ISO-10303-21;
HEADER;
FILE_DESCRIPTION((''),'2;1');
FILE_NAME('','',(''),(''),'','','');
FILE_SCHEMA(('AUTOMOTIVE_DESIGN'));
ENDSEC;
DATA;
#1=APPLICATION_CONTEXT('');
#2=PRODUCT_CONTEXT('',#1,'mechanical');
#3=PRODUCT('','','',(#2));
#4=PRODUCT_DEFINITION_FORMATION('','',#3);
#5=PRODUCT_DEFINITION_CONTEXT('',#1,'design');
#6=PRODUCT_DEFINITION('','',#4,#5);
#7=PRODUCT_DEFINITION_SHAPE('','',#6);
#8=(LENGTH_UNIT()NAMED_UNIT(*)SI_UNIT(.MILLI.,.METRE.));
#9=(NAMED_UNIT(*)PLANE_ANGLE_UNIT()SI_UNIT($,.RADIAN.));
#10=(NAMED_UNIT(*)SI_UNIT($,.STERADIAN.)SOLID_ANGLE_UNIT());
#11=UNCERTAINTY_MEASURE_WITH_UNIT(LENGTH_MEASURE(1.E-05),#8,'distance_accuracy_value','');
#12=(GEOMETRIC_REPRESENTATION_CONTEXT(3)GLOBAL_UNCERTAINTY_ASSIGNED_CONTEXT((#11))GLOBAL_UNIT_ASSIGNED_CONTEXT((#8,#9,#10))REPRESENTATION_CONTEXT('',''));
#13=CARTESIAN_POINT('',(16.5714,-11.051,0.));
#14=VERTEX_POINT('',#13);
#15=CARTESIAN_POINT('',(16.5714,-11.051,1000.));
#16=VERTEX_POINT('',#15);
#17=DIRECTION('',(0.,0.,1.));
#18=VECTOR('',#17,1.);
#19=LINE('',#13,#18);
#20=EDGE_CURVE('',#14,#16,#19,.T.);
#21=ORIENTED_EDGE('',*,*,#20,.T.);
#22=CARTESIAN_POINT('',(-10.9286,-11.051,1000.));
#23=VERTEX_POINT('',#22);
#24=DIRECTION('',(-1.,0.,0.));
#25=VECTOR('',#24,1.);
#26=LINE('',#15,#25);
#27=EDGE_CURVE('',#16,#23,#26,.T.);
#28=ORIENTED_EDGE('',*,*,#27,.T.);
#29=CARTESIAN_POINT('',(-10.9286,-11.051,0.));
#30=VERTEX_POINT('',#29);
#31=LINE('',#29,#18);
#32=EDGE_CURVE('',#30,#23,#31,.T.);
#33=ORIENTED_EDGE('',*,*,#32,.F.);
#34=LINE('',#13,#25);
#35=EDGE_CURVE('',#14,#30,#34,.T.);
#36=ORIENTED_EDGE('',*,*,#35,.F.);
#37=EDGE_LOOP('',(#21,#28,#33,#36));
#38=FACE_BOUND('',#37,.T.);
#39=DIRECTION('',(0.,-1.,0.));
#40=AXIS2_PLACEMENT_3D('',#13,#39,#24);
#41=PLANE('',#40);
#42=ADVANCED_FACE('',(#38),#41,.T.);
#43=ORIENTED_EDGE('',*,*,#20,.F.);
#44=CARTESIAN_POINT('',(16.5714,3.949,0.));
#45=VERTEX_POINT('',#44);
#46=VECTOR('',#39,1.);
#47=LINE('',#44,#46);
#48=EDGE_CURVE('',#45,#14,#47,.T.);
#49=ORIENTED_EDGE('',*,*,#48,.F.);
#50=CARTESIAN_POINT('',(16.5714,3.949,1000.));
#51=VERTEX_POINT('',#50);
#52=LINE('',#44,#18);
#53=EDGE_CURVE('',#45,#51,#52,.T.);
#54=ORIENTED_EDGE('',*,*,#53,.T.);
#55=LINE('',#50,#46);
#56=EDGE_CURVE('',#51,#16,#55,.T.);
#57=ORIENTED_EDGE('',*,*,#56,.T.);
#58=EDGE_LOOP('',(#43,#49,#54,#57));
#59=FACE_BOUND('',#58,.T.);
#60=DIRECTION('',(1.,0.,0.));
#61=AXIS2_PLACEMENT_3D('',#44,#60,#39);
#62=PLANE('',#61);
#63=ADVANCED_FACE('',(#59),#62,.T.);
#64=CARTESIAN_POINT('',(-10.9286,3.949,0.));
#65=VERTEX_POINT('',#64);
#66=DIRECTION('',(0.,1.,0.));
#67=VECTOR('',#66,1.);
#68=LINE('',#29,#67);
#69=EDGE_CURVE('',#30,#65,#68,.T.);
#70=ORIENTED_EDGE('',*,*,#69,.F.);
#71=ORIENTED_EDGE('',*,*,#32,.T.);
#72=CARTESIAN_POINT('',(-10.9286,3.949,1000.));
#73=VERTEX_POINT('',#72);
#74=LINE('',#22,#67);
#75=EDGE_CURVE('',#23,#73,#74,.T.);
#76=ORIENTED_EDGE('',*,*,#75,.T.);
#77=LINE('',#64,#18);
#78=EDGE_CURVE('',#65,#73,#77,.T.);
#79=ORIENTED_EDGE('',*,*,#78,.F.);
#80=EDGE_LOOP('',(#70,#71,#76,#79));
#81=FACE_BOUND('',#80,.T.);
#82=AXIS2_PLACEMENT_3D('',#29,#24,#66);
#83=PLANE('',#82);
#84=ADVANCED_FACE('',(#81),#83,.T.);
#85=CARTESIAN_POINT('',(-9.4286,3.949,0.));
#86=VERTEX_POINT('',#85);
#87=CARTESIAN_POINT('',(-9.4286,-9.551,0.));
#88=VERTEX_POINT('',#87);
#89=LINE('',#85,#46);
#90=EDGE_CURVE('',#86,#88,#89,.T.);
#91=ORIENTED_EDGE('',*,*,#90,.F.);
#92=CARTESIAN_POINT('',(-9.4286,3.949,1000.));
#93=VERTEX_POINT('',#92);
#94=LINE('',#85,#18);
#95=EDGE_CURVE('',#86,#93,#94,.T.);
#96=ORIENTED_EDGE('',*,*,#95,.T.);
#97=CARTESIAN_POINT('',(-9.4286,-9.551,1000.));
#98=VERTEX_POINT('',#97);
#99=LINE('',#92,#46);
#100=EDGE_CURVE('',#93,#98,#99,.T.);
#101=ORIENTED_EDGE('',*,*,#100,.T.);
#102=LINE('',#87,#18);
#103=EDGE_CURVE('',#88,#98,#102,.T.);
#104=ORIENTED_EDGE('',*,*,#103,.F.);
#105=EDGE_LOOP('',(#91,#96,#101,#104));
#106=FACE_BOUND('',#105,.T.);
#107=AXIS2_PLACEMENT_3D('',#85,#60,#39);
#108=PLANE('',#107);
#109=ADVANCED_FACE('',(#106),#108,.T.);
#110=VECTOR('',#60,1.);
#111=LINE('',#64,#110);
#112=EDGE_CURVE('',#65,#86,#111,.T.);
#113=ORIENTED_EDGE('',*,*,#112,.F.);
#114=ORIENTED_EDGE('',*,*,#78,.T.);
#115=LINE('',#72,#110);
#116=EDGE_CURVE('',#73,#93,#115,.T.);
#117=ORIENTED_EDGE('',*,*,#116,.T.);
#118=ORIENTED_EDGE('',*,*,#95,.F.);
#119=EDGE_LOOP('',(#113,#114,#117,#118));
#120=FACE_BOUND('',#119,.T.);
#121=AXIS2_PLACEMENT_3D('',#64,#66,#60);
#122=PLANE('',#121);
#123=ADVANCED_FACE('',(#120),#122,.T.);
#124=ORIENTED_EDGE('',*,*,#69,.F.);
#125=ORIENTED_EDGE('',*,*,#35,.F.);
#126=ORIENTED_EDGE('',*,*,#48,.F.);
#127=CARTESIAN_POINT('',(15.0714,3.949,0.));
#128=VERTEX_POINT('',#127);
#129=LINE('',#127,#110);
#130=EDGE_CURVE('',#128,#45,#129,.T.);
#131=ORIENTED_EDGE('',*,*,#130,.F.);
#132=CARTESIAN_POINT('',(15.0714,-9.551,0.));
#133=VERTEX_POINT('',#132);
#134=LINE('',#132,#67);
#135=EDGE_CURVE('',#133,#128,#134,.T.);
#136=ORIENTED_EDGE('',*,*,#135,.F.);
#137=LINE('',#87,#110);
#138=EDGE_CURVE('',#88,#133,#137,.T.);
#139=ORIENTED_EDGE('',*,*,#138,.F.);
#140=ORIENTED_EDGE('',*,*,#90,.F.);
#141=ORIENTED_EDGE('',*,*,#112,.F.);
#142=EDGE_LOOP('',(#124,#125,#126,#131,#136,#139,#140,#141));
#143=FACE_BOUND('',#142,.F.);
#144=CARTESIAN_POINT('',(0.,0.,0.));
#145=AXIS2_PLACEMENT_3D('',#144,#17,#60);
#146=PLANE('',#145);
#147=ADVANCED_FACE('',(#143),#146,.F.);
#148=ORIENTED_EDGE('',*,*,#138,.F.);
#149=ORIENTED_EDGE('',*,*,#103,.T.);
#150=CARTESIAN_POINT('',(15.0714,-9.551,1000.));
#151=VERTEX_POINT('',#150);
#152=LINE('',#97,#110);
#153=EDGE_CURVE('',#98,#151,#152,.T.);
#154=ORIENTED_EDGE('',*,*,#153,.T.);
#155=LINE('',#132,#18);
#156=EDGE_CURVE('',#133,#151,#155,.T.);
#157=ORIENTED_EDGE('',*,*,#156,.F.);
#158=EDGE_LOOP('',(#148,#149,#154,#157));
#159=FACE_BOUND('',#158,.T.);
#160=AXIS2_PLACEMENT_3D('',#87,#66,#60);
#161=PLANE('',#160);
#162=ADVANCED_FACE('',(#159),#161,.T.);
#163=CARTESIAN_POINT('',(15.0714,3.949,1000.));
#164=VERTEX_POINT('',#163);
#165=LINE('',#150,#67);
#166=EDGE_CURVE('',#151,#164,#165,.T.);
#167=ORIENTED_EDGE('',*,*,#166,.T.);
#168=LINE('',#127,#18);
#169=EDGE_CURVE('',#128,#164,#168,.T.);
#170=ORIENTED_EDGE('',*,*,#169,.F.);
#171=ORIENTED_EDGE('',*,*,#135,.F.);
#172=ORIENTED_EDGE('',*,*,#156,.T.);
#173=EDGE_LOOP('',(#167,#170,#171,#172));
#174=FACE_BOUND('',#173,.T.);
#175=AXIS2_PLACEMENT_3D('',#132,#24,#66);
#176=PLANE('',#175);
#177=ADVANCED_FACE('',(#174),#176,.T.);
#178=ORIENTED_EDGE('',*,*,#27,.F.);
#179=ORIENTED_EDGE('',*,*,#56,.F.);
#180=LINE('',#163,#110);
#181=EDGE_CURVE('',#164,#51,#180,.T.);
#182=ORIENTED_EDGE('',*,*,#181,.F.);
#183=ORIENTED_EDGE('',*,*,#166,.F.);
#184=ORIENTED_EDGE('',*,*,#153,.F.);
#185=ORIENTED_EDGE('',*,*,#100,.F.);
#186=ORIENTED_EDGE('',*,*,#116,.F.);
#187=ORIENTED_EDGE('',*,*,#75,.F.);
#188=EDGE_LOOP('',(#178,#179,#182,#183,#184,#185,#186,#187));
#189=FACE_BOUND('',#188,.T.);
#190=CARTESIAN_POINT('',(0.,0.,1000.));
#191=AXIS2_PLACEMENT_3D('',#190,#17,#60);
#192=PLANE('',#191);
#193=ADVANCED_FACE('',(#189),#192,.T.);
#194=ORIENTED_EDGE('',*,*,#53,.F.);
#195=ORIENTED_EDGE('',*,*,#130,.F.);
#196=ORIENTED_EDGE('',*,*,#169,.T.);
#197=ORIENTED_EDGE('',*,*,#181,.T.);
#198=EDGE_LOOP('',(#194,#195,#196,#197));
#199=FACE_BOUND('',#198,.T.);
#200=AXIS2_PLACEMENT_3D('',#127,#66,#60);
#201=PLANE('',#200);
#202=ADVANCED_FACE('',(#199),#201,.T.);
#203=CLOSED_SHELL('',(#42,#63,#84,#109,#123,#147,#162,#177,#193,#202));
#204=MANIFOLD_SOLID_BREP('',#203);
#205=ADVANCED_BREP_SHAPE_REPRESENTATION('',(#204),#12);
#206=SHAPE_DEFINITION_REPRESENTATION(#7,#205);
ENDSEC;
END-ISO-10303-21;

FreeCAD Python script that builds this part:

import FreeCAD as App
import Part
import Sketcher
from FreeCAD import Vector
Q = App.Units.Quantity

doc = App.newDocument("Part")
body = doc.addObject("PartDesign::Body", "Body")

sketch1 = body.newObject("Sketcher::SketchObject", "Sketch")
sketch1.AttachmentSupport = (doc.getObject("XY_Plane"), [""])
sketch1.MapMode = "FlatFace"
sketch1.addGeometry([
    Part.LineSegment(Vector(-10.9286, 3.949, 0), Vector(-10.9286, -11.051, 0)),
    Part.LineSegment(Vector(-10.9286, -11.051, 0), Vector(16.5714, -11.051, 0)),
    Part.LineSegment(Vector(16.5714, -11.051, 0), Vector(16.5714, 3.949, 0)),
    Part.LineSegment(Vector(16.5714, 3.949, 0), Vector(15.0714, 3.949, 0)),
    Part.LineSegment(Vector(15.0714, 3.949, 0), Vector(15.0714, -9.551, 0)),
    Part.LineSegment(Vector(15.0714, -9.551, 0), Vector(-9.4286, -9.551, 0)),
    Part.LineSegment(Vector(-9.4286, -9.551, 0), Vector(-9.4286, 3.949, 0)),
    Part.LineSegment(Vector(-9.4286, 3.949, 0), Vector(-10.9286, 3.949, 0)),
], False)
sketch1.addConstraint([
    Sketcher.Constraint("Coincident", 0, 2, 1, 1),
    Sketcher.Constraint("Coincident", 1, 2, 2, 1),
    Sketcher.Constraint("Coincident", 2, 2, 3, 1),
    Sketcher.Constraint("Coincident", 3, 2, 4, 1),
    Sketcher.Constraint("Coincident", 4, 2, 5, 1),
    Sketcher.Constraint("Coincident", 5, 2, 6, 1),
    Sketcher.Constraint("Coincident", 6, 2, 7, 1),
    Sketcher.Constraint("Coincident", 7, 2, 0, 1),
    Sketcher.Constraint("Vertical", 0),
    Sketcher.Constraint("Horizontal", 1),
    Sketcher.Constraint("Vertical", 2),
    Sketcher.Constraint("Horizontal", 3),
    Sketcher.Constraint("Vertical", 4),
    Sketcher.Constraint("Horizontal", 5),
    Sketcher.Constraint("Vertical", 6),
    Sketcher.Constraint("Horizontal", 7),
    Sketcher.Constraint("Horizontal", 3, 2, 6, 2),
    Sketcher.Constraint("Equal", 3, 7),
    Sketcher.Constraint("DistanceY", 0, 2, 0, 1, Q("15 mm")),
    Sketcher.Constraint("DistanceX", 1, 1, 1, 2, Q("27.5 mm")),
    Sketcher.Constraint("DistanceX", 3, 2, 3, 1, Q("1.5 mm")),
    Sketcher.Constraint("DistanceY", 1, 2, 4, 2, Q("1.5 mm")),
    Sketcher.Constraint("DistanceY", 0, 2, -1, 1, Q("11.051 mm")),
    Sketcher.Constraint("DistanceX", 0, 2, -1, 1, Q("10.9286 mm")),
])
pad1 = body.newObject("PartDesign::Pad", "Pad")
pad1.Profile = sketch1
pad1.Length = 1000

doc.recompute()
